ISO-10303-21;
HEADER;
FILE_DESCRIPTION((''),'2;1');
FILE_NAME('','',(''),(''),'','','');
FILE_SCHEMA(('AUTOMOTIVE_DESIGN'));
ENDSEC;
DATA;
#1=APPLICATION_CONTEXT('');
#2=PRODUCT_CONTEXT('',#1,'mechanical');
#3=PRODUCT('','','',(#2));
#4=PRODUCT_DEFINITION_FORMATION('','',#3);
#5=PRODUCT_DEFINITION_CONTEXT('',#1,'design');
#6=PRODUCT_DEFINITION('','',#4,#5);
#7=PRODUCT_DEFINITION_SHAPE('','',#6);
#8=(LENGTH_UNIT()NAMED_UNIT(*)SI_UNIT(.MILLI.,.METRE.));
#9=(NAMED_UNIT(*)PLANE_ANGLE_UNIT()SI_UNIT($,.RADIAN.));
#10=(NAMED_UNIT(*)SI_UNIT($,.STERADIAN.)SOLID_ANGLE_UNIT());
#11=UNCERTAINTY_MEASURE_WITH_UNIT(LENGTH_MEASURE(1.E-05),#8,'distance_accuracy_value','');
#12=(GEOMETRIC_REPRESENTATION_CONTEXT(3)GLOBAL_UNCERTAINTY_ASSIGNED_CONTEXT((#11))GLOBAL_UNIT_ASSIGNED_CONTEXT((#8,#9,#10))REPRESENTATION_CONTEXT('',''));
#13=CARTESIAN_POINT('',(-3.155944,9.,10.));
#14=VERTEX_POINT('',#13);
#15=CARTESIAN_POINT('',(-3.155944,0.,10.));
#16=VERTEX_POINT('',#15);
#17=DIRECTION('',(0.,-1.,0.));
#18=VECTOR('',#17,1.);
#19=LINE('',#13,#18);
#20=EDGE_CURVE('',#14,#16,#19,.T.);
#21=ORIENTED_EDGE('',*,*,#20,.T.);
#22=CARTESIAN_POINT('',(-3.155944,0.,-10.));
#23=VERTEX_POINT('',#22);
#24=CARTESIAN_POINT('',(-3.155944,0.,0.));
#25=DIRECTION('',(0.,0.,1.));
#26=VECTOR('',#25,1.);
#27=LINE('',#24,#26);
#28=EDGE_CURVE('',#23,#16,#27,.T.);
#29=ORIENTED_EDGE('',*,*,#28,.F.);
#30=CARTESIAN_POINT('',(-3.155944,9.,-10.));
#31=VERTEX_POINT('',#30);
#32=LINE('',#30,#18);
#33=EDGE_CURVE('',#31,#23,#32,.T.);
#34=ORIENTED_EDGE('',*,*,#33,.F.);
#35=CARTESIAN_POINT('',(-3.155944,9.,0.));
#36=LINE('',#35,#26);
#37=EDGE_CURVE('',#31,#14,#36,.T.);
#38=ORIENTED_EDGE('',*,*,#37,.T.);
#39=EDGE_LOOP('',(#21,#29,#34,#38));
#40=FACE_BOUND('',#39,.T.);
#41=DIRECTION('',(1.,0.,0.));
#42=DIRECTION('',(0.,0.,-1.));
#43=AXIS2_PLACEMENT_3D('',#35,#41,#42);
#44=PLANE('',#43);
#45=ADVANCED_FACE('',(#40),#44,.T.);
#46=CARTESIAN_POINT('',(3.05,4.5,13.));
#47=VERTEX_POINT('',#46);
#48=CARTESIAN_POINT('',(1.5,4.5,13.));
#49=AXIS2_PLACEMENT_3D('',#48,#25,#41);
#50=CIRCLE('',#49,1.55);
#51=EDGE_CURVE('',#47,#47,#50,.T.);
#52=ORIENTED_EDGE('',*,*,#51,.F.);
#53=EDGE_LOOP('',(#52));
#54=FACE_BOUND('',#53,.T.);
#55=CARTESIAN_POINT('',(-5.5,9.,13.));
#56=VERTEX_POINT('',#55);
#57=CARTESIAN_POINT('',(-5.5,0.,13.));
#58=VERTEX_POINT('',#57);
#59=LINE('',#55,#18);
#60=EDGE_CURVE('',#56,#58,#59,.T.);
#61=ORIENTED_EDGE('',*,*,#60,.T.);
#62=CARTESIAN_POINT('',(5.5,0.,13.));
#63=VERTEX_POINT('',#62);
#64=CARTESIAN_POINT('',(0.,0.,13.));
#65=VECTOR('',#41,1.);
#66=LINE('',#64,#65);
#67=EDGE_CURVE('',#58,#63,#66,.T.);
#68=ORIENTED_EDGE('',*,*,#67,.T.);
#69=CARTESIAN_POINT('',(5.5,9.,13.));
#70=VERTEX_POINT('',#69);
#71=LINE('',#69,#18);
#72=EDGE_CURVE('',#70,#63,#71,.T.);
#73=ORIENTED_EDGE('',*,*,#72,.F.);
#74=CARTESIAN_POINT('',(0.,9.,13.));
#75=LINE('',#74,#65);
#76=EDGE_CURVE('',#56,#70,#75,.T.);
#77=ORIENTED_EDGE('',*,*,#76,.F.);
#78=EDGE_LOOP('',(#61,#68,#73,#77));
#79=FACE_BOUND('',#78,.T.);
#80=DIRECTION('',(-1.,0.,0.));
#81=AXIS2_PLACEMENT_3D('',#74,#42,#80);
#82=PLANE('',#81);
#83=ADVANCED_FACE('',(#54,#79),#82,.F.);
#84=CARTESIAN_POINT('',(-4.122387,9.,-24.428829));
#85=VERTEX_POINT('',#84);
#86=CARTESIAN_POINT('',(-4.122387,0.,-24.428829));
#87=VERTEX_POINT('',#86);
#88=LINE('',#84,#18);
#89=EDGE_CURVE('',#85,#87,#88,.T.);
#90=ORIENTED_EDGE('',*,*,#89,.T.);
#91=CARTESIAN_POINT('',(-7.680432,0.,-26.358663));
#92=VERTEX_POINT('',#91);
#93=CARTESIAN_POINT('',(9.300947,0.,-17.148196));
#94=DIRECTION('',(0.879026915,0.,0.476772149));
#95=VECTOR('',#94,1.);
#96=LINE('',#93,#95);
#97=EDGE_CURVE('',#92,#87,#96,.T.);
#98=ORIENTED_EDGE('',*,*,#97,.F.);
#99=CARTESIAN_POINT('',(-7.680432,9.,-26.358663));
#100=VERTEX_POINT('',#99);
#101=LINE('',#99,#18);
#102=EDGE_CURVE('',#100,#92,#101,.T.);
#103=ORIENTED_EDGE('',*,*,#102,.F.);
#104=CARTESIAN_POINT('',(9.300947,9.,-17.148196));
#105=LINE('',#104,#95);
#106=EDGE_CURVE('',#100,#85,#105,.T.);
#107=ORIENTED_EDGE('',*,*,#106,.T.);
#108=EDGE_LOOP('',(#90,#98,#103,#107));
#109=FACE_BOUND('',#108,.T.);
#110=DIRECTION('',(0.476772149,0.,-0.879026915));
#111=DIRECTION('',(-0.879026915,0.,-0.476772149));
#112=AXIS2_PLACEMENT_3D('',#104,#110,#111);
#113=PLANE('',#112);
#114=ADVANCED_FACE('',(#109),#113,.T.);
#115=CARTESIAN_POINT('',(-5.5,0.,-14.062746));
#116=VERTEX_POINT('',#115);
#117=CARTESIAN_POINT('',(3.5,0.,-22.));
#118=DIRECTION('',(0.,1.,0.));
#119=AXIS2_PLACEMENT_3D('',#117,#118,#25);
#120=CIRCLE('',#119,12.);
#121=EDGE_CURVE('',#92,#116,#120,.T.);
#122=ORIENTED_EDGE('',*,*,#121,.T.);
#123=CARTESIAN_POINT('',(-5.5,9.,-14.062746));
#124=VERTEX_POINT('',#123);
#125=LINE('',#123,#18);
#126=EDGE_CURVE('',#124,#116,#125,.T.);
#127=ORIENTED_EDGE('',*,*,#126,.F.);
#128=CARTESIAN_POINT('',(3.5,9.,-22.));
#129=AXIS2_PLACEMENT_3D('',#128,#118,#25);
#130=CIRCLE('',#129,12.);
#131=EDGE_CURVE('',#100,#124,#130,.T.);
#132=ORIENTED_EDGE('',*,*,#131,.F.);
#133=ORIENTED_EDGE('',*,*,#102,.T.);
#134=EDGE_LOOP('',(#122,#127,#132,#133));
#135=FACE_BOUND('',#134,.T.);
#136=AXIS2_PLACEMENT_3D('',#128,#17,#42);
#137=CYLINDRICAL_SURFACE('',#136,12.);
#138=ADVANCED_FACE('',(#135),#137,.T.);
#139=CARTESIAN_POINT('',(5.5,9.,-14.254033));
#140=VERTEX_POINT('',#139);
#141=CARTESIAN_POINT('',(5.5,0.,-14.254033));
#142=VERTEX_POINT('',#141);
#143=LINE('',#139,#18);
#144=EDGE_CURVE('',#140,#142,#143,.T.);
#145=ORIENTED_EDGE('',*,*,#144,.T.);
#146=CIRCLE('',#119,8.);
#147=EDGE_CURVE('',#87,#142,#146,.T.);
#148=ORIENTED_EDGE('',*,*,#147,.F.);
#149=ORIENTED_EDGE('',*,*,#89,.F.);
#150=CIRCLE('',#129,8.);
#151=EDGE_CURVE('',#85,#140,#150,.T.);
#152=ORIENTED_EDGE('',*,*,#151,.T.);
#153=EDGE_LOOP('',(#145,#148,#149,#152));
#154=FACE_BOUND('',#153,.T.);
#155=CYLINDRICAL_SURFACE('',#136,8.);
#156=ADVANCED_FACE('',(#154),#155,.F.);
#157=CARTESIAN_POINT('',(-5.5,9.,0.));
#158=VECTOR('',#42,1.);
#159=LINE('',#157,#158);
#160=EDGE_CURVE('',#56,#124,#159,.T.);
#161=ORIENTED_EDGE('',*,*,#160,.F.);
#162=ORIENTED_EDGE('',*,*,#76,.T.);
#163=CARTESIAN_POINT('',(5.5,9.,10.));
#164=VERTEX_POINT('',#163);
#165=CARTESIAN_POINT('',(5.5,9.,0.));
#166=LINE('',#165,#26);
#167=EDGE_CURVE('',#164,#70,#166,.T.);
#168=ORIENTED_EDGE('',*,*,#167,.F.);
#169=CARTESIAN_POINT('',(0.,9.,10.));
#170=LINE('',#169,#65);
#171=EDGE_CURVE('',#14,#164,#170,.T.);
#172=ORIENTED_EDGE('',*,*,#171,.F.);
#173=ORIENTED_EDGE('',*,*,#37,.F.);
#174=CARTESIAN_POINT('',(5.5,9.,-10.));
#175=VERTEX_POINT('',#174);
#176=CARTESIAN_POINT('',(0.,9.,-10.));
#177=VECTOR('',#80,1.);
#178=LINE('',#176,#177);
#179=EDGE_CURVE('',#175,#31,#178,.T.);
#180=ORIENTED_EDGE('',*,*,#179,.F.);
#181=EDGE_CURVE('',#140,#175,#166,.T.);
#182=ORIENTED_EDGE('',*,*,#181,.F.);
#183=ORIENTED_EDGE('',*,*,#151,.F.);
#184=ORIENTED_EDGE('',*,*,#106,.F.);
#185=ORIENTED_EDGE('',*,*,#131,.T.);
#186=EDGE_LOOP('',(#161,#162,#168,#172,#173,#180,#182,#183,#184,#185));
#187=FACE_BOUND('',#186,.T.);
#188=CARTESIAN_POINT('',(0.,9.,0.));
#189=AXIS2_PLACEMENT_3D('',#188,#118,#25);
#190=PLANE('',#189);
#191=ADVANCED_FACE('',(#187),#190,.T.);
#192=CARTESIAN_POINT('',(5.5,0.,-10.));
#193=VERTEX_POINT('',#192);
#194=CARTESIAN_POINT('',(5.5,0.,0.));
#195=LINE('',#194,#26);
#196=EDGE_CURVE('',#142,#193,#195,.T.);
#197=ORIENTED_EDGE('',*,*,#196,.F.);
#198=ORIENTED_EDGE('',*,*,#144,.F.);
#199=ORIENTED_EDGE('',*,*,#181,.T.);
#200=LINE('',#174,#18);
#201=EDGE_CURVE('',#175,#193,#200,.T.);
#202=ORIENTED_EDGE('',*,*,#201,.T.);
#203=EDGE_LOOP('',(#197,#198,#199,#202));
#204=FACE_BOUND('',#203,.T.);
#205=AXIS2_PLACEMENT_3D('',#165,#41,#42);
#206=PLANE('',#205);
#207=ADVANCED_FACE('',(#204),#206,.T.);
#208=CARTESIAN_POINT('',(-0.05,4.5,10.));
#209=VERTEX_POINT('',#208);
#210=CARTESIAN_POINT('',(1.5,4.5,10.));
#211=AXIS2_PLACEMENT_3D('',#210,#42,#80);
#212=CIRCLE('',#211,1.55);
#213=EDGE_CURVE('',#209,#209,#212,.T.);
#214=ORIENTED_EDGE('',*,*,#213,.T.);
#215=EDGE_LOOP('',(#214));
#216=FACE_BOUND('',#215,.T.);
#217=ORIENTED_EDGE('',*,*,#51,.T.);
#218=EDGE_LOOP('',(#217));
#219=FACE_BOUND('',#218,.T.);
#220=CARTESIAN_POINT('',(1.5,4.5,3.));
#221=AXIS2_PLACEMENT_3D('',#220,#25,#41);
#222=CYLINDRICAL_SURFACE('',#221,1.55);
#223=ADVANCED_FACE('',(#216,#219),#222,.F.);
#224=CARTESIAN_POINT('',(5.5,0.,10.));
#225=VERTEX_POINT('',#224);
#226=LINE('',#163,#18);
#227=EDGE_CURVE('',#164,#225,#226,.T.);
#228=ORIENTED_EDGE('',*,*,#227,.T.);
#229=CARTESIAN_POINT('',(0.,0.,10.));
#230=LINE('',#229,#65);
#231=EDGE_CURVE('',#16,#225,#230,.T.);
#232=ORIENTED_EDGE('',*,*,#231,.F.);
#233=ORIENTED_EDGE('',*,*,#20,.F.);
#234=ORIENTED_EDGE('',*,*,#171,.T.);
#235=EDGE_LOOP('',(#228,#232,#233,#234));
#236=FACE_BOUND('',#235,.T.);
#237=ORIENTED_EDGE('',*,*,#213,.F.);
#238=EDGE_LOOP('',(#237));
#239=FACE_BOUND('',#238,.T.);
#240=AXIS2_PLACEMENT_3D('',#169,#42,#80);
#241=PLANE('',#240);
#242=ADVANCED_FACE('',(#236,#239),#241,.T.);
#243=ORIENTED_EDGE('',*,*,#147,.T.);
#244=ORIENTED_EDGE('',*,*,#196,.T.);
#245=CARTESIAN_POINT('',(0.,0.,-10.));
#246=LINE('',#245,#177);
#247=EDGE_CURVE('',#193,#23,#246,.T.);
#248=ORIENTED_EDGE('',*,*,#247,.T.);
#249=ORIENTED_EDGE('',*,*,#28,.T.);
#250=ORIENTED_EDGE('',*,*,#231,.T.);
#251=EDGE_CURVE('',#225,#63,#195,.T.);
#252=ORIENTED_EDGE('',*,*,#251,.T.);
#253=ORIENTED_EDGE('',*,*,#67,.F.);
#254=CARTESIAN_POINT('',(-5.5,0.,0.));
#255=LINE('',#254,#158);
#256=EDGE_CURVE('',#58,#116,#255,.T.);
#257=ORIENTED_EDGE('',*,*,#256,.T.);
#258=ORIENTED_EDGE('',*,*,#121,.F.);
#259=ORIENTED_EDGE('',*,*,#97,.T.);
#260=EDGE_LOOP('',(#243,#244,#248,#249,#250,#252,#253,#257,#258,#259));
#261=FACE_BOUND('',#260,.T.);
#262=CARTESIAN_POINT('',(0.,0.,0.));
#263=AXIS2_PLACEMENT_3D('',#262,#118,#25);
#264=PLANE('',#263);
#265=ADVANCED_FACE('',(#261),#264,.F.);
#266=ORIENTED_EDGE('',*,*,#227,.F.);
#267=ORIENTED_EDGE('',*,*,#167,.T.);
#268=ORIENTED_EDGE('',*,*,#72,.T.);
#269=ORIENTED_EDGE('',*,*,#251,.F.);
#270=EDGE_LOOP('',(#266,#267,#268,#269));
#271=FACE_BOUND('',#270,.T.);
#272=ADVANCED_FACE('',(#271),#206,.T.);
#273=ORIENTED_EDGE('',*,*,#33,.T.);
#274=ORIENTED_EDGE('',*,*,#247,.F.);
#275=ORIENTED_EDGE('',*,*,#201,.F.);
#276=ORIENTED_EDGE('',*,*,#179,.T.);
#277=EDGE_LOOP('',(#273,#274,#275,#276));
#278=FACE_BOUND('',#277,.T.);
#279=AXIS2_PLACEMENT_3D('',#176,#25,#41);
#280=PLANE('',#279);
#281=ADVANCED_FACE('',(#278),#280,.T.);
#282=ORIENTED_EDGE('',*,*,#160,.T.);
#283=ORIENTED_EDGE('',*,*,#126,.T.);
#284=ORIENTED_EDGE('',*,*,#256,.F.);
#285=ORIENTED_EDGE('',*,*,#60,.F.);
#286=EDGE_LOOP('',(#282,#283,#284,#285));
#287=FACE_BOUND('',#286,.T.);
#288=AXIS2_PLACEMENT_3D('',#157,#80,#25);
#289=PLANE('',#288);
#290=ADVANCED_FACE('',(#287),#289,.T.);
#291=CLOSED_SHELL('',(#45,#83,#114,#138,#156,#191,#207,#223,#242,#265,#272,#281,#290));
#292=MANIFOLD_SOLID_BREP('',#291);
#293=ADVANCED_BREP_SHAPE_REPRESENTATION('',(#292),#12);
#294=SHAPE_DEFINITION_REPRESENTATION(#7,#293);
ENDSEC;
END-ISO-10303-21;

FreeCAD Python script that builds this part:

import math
import FreeCAD as App
import Part
import Sketcher

V = App.Vector

doc = App.newDocument("Part")
body = doc.addObject("PartDesign::Body", "Body")

# Sketch on XZ plane
sketch1 = body.newObject("Sketcher::SketchObject", "Sketch")
sketch1.AttachmentSupport = (doc.getObject("XZ_Plane"), [""])
sketch1.MapMode = "FlatFace"
sketch1.addGeometry(Part.LineSegment(V(5.5, -10, 0), V(5.5, -14.3, 0)), False)
sketch1.addGeometry(Part.ArcOfCircle(Part.Circle(V(3.5, -22, 0), V(0, 0, 1), 8), math.radians(76), math.radians(198)), False)
sketch1.addGeometry(Part.LineSegment(V(-4.1, -24.4, 0), V(-7.7, -26.4, 0)), False)
sketch1.addGeometry(Part.ArcOfCircle(Part.Circle(V(3.5, -22, 0), V(0, 0, 1), 12), math.radians(139), math.radians(201)), False)
sketch1.addGeometry(Part.LineSegment(V(-5.5, -14.1, 0), V(-5.5, 13, 0)), False)
sketch1.addGeometry(Part.LineSegment(V(-5.5, 13, 0), V(5.5, 13, 0)), False)
sketch1.addGeometry(Part.LineSegment(V(5.5, 13, 0), V(5.5, 10, 0)), False)
sketch1.addGeometry(Part.LineSegment(V(5.5, 10, 0), V(-3.2, 10, 0)), False)
sketch1.addGeometry(Part.LineSegment(V(-3.2, 10, 0), V(-3.2, -10, 0)), False)
sketch1.addGeometry(Part.LineSegment(V(-3.2, -10, 0), V(5.5, -10, 0)), False)
sketch1.addConstraint(Sketcher.Constraint("Coincident", 0, 2, 1, 1))
sketch1.addConstraint(Sketcher.Constraint("Coincident", 1, 2, 2, 1))
sketch1.addConstraint(Sketcher.Constraint("Coincident", 2, 2, 3, 2))
sketch1.addConstraint(Sketcher.Constraint("Coincident", 3, 1, 4, 1))
sketch1.addConstraint(Sketcher.Constraint("Coincident", 4, 2, 5, 1))
sketch1.addConstraint(Sketcher.Constraint("Coincident", 5, 2, 6, 1))
sketch1.addConstraint(Sketcher.Constraint("Coincident", 6, 2, 7, 1))
sketch1.addConstraint(Sketcher.Constraint("Coincident", 7, 2, 8, 1))
sketch1.addConstraint(Sketcher.Constraint("Coincident", 8, 2, 9, 1))
sketch1.addConstraint(Sketcher.Constraint("Coincident", 9, 2, 0, 1))
sketch1.addConstraint(Sketcher.Constraint("Vertical", 0))
sketch1.addConstraint(Sketcher.Constraint("Vertical", 4))
sketch1.addConstraint(Sketcher.Constraint("Horizontal", 5))
sketch1.addConstraint(Sketcher.Constraint("Vertical", 6))
sketch1.addConstraint(Sketcher.Constraint("Horizontal", 7))
sketch1.addConstraint(Sketcher.Constraint("Vertical", 8))
sketch1.addConstraint(Sketcher.Constraint("Horizontal", 9))
sketch1.addConstraint(Sketcher.Constraint("Coincident", 3, 3, 1, 3))
sketch1.addConstraint(Sketcher.Constraint("Symmetric", 6, 2, 9, 2, -1))
sketch1.addConstraint(Sketcher.Constraint("Radius", 1, 8.0))
sketch1.addConstraint(Sketcher.Constraint("Radius", 3, 12.0))
sketch1.addConstraint(Sketcher.Constraint("DistanceX", 5, 1, 5, 2, 11.0))
sketch1.addConstraint(Sketcher.Constraint("DistanceY", 6, 2, 6, 1, 3.0))
sketch1.addConstraint(Sketcher.Constraint("DistanceY", 8, 2, 8, 1, 20.0))
sketch1.addConstraint(Sketcher.Constraint("DistanceY", 1, 3, -1, 1, 22.0))
sketch1.addConstraint(Sketcher.Constraint("DistanceX", 3, 3, 0, 2, 2.0))
sketch1.addConstraint(Sketcher.Constraint("DistanceX", -1, 1, 1, 3, 3.5))
sketch1.addConstraint(Sketcher.Constraint("Distance", 2, 4.047708))
sketch1.addConstraint(Sketcher.Constraint("DistanceX", 7, 2, 7, 1, 8.655944))
sketch1.addConstraint(Sketcher.Constraint("DistanceY", 1, 2, -1, 1, 24.428829))
pad1 = body.newObject("PartDesign::Pad", "Pad")
pad1.Profile = sketch1
pad1.Length = 9
pad1.Reversed = True

# Sketch on XY plane
sketch2 = body.newObject("Sketcher::SketchObject", "Sketch001")
sketch2.AttachmentSupport = (doc.getObject("XY_Plane"), [""])
sketch2.MapMode = "FlatFace"
sketch2.AttachmentOffset = App.Placement(V(0, 0, 13), App.Rotation())
sketch2.addGeometry(Part.Circle(V(1.5, 4.5, 0), V(0, 0, 1), 1.6), False)
sketch2.addConstraint(Sketcher.Constraint("Diameter", 0, 3.1))
sketch2.addConstraint(Sketcher.Constraint("DistanceX", -1, 1, 0, 3, 1.5))
sketch2.addConstraint(Sketcher.Constraint("DistanceY", -1, 1, 0, 3, 4.5))
pocket1 = body.newObject("PartDesign::Pocket", "Pocket")
pocket1.Profile = sketch2
pocket1.Length = 10

doc.recompute()
